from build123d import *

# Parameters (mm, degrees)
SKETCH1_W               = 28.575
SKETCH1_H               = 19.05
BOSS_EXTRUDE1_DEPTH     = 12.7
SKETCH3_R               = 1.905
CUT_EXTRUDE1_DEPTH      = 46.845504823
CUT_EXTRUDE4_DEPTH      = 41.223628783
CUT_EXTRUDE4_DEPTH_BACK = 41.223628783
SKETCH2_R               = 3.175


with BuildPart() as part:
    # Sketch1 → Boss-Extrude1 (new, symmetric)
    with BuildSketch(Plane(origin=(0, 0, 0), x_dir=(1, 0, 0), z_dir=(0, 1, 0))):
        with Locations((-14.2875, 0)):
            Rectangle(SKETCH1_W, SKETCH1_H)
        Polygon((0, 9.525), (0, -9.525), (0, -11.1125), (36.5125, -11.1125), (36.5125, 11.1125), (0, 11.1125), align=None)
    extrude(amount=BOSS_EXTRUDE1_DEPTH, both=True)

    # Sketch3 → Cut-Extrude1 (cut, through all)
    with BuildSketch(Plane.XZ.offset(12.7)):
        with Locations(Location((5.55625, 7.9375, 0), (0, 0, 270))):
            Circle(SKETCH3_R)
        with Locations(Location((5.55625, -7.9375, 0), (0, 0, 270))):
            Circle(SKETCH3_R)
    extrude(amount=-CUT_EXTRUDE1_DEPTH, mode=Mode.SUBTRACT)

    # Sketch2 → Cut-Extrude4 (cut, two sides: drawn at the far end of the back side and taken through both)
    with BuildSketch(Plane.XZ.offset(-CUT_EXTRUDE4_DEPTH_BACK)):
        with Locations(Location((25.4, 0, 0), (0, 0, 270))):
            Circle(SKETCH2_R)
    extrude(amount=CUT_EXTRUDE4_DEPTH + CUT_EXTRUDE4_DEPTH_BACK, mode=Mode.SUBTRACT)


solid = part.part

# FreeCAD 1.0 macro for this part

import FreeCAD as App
import Part
import Sketcher

V = App.Vector
Q = App.Units.Quantity

doc = App.newDocument("Part")
params = doc.addObject("Spreadsheet::Sheet", "Params")
for row, (alias, value) in enumerate([
    ("sketch1_height", "0.75 in"),
    ("sketch1_width", "1.125 in"),
    ("sketch1_width2", "1.4375 in"),
    ("sketch1_height2", "0.0625 in"),
    ("pad1_length", "1 in"),
    ("sketch2_diameter", "0.15 in"),
    ("sketch3_diameter", "0.25 in"),
], start=1):
    params.set(f"A{row}", alias)
    params.set(f"B{row}", "=" + value)
    params.setAlias(f"B{row}", alias)

body = doc.addObject("PartDesign::Body", "Body")

sketch1 = body.newObject("Sketcher::SketchObject", "Sketch")
sketch1.AttachmentSupport = (doc.getObject("XZ_Plane"), [""])
sketch1.MapMode = "FlatFace"
sketch1.addGeometry(Part.LineSegment(V(-28.6, -9.5, 0), V(-28.6, 9.5, 0)), False)
sketch1.addGeometry(Part.LineSegment(V(-28.6, 9.5, 0), V(0, 9.5, 0)), False)
sketch1.addGeometry(Part.LineSegment(V(0, 9.5, 0), V(0, 11.1, 0)), False)
sketch1.addGeometry(Part.LineSegment(V(0, 11.1, 0), V(36.5, 11.1, 0)), False)
sketch1.addGeometry(Part.LineSegment(V(36.5, 11.1, 0), V(36.5, -11.1, 0)), False)
sketch1.addGeometry(Part.LineSegment(V(36.5, -11.1, 0), V(0, -11.1, 0)), False)
sketch1.addGeometry(Part.LineSegment(V(0, -11.1, 0), V(0, -9.5, 0)), False)
sketch1.addGeometry(Part.LineSegment(V(0, -9.5, 0), V(-28.6, -9.5, 0)), False)
sketch1.addConstraint(Sketcher.Constraint("Coincident", 0, 2, 1, 1))
sketch1.addConstraint(Sketcher.Constraint("Coincident", 1, 2, 2, 1))
sketch1.addConstraint(Sketcher.Constraint("Coincident", 2, 2, 3, 1))
sketch1.addConstraint(Sketcher.Constraint("Coincident", 3, 2, 4, 1))
sketch1.addConstraint(Sketcher.Constraint("Coincident", 4, 2, 5, 1))
sketch1.addConstraint(Sketcher.Constraint("Coincident", 5, 2, 6, 1))
sketch1.addConstraint(Sketcher.Constraint("Coincident", 6, 2, 7, 1))
sketch1.addConstraint(Sketcher.Constraint("Coincident", 7, 2, 0, 1))
sketch1.addConstraint(Sketcher.Constraint("Vertical", 0))
sketch1.addConstraint(Sketcher.Constraint("Horizontal", 1))
sketch1.addConstraint(Sketcher.Constraint("Vertical", 2))
sketch1.addConstraint(Sketcher.Constraint("Horizontal", 3))
sketch1.addConstraint(Sketcher.Constraint("Vertical", 4))
sketch1.addConstraint(Sketcher.Constraint("Horizontal", 5))
sketch1.addConstraint(Sketcher.Constraint("Vertical", 6))
sketch1.addConstraint(Sketcher.Constraint("Horizontal", 7))
sketch1.addConstraint(Sketcher.Constraint("Symmetric", 2, 2, 5, 2, -1, 1))
sketch1.addConstraint(Sketcher.Constraint("Symmetric", 1, 2, 6, 2, -1))
sketch1.addConstraint(Sketcher.Constraint("DistanceY", 0, 1, 0, 2, Q("0.75 in")))
sketch1.addConstraint(Sketcher.Constraint("DistanceX", 1, 1, 1, 2, Q("1.125 in")))
sketch1.addConstraint(Sketcher.Constraint("DistanceX", 3, 1, 3, 2, Q("1.4375 in")))
sketch1.addConstraint(Sketcher.Constraint("DistanceY", 2, 1, 2, 2, Q("0.0625 in")))
sketch1.setExpression("Constraints[18]", "Params.sketch1_height")
sketch1.setExpression("Constraints[19]", "Params.sketch1_width")
sketch1.setExpression("Constraints[20]", "Params.sketch1_width2")
sketch1.setExpression("Constraints[21]", "Params.sketch1_height2")
pad1 = body.newObject("PartDesign::Pad", "Pad")
pad1.Profile = sketch1
pad1.setExpression("Length", "Params.pad1_length")
pad1.Midplane = True

sketch2 = body.newObject("Sketcher::SketchObject", "Sketch001")
sketch2.AttachmentSupport = (doc.getObject("XZ_Plane"), [""])
sketch2.MapMode = "FlatFace"
sketch2.AttachmentOffset = App.Placement(V(0, 0, 0.5 * 25.4), App.Rotation())
sketch2.addGeometry(Part.Circle(V(5.6, 7.9, 0), V(0, 0, 1), 1.9), False)
sketch2.addGeometry(Part.Circle(V(5.6, -7.9, 0), V(0, 0, 1), 1.9), False)
sketch2.addConstraint(Sketcher.Constraint("Equal", 0, 1))
sketch2.addConstraint(Sketcher.Constraint("Symmetric", 0, 3, 1, 3, -1))
sketch2.addConstraint(Sketcher.Constraint("Diameter", 0, Q("0.15 in")))
sketch2.addConstraint(Sketcher.Constraint("DistanceX", -1, 1, 0, 3, Q("0.21875 in")))
sketch2.addConstraint(Sketcher.Constraint("DistanceY", -1, 1, 0, 3, Q("0.3125 in")))
sketch2.setExpression("Constraints[2]", "Params.sketch2_diameter")
pocket1 = body.newObject("PartDesign::Pocket", "Pocket")
pocket1.Profile = sketch2
pocket1.Type = "ThroughAll"

sketch3 = body.newObject("Sketcher::SketchObject", "Sketch002")
sketch3.AttachmentSupport = (doc.getObject("XZ_Plane"), [""])
sketch3.MapMode = "FlatFace"
sketch3.addGeometry(Part.Circle(V(25.4, 0, 0), V(0, 0, 1), 3.2), False)
sketch3.addConstraint(Sketcher.Constraint("PointOnObject", 0, 3, -1))
sketch3.addConstraint(Sketcher.Constraint("Diameter", 0, Q("0.25 in")))
sketch3.addConstraint(Sketcher.Constraint("DistanceX", -1, 1, 0, 3, Q("1 in")))
sketch3.setExpression("Constraints[1]", "Params.sketch3_diameter")
pocket2 = body.newObject("PartDesign::Pocket", "Pocket001")
pocket2.Profile = sketch3
pocket2.Type = "ThroughAll"
pocket2.Midplane = True

doc.recompute()
